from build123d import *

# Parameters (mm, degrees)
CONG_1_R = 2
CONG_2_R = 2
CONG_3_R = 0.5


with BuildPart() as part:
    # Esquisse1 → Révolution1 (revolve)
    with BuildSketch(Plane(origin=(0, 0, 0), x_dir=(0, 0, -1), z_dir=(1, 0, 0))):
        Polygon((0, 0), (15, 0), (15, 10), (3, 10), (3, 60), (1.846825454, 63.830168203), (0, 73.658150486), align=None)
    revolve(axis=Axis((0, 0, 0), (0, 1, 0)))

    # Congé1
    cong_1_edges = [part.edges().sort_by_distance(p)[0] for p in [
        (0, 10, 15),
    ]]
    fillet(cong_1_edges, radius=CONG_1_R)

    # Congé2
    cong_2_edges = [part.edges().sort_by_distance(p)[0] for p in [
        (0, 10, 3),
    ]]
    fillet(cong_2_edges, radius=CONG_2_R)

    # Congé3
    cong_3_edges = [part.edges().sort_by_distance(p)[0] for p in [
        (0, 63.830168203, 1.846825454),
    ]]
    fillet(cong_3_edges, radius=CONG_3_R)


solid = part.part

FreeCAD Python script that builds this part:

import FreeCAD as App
import Part
import Sketcher
from FreeCAD import Vector
Q = App.Units.Quantity


def edges_at(feature, points):
    """Names of the edges that pass closest to the given points."""
    edges = feature.Shape.Edges
    near = lambda p: min(range(len(edges)), key=lambda i: edges[i].distToShape(Part.Vertex(*p))[0])
    return sorted({f"Edge{near(p) + 1}" for p in points})


def add_polygon(sketch, points):
    """Adds a closed chain of lines whose ends are joined by coincident constraints."""
    first, n = sketch.GeometryCount, len(points)
    for a, b in zip(points, points[1:] + points[:1]):
        sketch.addGeometry(Part.LineSegment(App.Vector(*a, 0), App.Vector(*b, 0)), False)
    for i in range(n):
        sketch.addConstraint(Sketcher.Constraint("Coincident", first + i, 2, first + (i + 1) % n, 1))

doc = App.newDocument("Part")
body = doc.addObject("PartDesign::Body", "Body")

sketch1 = body.newObject("Sketcher::SketchObject", "Sketch")
sketch1.AttachmentSupport = (doc.getObject("YZ_Plane"), [""])
sketch1.MapMode = "FlatFace"
add_polygon(sketch1, [(0, 0), (0, -15), (10, -15), (10, -3), (60, -3), (63.8, -1.8), (73.7, 0)])
sketch1.addConstraint([
    Sketcher.Constraint("Vertical", 0),
    Sketcher.Constraint("Horizontal", 1),
    Sketcher.Constraint("Vertical", 2),
    Sketcher.Constraint("Horizontal", 3),
    Sketcher.Constraint("Horizontal", 6),
    Sketcher.Constraint("Coincident", 6, 2, -1, 1),
    Sketcher.Constraint("DistanceX", 1, 1, 1, 2, Q("10 mm")),
    Sketcher.Constraint("DistanceX", 3, 1, 3, 2, Q("50 mm")),
    Sketcher.Constraint("DistanceY", 0, 2, 0, 1, Q("15 mm")),
    Sketcher.Constraint("DistanceY", 2, 1, 2, 2, Q("12 mm")),
    Sketcher.Constraint("Distance", 4, Q("4 mm")),
    Sketcher.Constraint("Distance", 5, Q("10 mm")),
    Sketcher.Constraint("DistanceX", 6, 2, 6, 1, Q("73.65815 mm")),
])
revolution = body.newObject("PartDesign::Revolution", "Revolution")
revolution.Profile = sketch1
revolution.ReferenceAxis = (sketch1, ["H_Axis"])
revolution.Angle = 360
doc.recompute()

fillet = body.newObject("PartDesign::Fillet", "Fillet")
fillet.Base = (revolution, edges_at(revolution, [(0, 10, 15)]))
fillet.Radius = 2
doc.recompute()

fillet2 = body.newObject("PartDesign::Fillet", "Fillet001")
fillet2.Base = (fillet, edges_at(fillet, [(0, 10, 3)]))
fillet2.Radius = 2
doc.recompute()

fillet3 = body.newObject("PartDesign::Fillet", "Fillet002")
fillet3.Base = (fillet2, edges_at(fillet2, [(0, 63.83, 1.847)]))
fillet3.Radius = 0.5

doc.recompute()
